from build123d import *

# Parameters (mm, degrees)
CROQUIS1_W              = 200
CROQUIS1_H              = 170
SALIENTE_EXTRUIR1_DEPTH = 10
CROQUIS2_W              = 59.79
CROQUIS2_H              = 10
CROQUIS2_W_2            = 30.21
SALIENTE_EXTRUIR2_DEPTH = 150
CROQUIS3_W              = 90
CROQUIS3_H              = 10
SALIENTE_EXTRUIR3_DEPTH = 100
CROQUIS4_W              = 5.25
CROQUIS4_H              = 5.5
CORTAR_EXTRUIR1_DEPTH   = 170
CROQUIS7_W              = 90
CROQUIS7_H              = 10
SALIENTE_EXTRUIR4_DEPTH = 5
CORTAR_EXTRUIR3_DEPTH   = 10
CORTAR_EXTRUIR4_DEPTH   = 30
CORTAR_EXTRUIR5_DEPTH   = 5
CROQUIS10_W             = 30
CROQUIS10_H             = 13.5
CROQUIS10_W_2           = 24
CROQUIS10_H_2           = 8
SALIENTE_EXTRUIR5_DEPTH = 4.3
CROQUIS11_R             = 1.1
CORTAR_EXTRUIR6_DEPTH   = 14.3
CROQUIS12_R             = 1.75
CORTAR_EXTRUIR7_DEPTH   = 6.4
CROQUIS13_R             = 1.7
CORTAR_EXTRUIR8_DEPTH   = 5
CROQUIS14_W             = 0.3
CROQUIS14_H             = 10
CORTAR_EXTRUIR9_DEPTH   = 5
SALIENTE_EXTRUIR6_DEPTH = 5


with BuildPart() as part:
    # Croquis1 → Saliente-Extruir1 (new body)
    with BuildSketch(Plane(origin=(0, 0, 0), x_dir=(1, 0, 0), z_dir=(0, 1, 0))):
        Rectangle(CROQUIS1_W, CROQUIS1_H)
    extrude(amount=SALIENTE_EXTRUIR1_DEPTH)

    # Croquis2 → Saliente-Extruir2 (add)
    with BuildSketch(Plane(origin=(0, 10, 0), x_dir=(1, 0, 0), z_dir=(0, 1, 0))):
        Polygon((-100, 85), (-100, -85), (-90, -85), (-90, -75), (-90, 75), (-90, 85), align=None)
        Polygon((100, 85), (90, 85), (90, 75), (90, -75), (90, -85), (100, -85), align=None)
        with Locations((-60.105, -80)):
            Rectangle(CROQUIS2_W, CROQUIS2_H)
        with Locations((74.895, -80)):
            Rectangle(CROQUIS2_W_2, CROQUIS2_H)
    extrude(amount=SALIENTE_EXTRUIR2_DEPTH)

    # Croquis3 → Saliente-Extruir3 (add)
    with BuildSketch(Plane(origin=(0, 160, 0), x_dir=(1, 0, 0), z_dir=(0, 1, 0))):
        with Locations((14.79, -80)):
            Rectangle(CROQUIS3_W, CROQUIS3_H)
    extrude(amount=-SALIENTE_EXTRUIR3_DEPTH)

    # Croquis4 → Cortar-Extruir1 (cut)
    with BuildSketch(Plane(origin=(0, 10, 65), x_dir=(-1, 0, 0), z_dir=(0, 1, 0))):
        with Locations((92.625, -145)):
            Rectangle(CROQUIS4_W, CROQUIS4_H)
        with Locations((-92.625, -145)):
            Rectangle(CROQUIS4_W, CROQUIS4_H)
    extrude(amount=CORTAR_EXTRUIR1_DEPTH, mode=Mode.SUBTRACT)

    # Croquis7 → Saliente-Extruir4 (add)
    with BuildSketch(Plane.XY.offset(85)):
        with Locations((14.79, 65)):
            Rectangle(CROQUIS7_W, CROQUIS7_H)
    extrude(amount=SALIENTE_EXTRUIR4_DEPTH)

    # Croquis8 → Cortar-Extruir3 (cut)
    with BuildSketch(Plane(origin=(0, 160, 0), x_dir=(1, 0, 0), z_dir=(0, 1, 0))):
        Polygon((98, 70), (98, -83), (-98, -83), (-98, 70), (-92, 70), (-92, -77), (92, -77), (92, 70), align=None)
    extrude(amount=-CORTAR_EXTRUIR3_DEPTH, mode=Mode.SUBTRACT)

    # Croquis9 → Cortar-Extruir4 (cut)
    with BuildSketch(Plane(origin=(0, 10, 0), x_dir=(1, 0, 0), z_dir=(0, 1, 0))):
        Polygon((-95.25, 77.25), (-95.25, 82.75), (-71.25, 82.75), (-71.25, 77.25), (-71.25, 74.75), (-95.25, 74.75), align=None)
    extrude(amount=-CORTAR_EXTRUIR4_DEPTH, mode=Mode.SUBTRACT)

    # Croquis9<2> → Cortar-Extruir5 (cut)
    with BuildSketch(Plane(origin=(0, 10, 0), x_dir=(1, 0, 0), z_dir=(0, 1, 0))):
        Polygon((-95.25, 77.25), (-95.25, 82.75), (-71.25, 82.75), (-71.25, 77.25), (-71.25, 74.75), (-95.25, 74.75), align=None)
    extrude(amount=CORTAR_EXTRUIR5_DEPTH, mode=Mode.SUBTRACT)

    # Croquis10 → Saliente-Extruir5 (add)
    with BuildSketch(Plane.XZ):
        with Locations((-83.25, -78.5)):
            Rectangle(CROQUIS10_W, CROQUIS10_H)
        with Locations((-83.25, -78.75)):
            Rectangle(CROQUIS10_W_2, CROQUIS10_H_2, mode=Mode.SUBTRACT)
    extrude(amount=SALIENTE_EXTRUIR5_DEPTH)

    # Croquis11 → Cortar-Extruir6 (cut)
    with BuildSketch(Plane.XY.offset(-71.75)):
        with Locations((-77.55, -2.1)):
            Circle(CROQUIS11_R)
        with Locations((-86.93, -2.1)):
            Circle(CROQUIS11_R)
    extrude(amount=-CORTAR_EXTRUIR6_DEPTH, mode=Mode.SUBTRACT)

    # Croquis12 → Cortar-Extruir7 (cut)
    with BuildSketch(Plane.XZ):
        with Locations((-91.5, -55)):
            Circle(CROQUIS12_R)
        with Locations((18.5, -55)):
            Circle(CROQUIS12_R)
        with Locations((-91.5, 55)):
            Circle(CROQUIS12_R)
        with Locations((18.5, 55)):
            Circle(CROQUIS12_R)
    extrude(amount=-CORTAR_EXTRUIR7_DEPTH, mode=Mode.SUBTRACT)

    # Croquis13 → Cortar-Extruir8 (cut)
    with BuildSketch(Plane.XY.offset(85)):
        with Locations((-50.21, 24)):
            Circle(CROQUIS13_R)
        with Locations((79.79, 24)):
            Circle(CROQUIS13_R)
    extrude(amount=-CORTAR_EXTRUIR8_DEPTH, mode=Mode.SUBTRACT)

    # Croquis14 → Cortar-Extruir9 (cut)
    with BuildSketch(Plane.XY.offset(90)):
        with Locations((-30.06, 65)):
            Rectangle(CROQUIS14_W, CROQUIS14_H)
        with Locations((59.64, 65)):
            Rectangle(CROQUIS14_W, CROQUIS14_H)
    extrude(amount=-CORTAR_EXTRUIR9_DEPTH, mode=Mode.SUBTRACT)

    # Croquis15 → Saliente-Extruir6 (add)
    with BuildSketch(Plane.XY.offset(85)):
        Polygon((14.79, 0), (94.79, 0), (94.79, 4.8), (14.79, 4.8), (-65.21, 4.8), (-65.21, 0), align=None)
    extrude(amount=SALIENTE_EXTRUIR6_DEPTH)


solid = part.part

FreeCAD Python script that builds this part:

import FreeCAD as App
import Part
import Sketcher

V = App.Vector


def add_polygon(sketch, points):
    """Adds a closed chain of lines whose ends are joined by coincident constraints."""
    first, n = sketch.GeometryCount, len(points)
    for a, b in zip(points, points[1:] + points[:1]):
        sketch.addGeometry(Part.LineSegment(App.Vector(*a, 0), App.Vector(*b, 0)), False)
    for i in range(n):
        sketch.addConstraint(Sketcher.Constraint("Coincident", first + i, 2, first + (i + 1) % n, 1))

doc = App.newDocument("Part")
body = doc.addObject("PartDesign::Body", "Body")

# Sketch on XZ plane
sketch1 = body.newObject("Sketcher::SketchObject", "Sketch")
sketch1.AttachmentSupport = (doc.getObject("XZ_Plane"), [""])
sketch1.MapMode = "FlatFace"
add_polygon(sketch1, [(-100, -85), (-100, 85), (100, 85), (100, -85)])  # lines 0-3
sketch1.addConstraint([
    Sketcher.Constraint("Vertical", 0),
    Sketcher.Constraint("Horizontal", 1),
    Sketcher.Constraint("Vertical", 2),
    Sketcher.Constraint("Horizontal", 3),
    Sketcher.Constraint("Symmetric", 0, 2, 2, 2, -1, 1),
    Sketcher.Constraint("DistanceX", 1, 1, 1, 2, 200.0),
    Sketcher.Constraint("DistanceY", 0, 1, 0, 2, 170.0),
])
pad1 = body.newObject("PartDesign::Pad", "Pad")
pad1.Profile = sketch1
pad1.Length = 10
pad1.Reversed = True

# Sketch on XZ plane
sketch2 = body.newObject("Sketcher::SketchObject", "Sketch001")
sketch2.AttachmentSupport = (doc.getObject("XZ_Plane"), [""])
sketch2.MapMode = "FlatFace"
sketch2.AttachmentOffset = App.Placement(V(0, 0, -10), App.Rotation())
add_polygon(sketch2, [(-100, -85), (-100, 85), (-30, 85), (-30, 75), (-90, 75), (-90, -85)])  # lines 0-5
add_polygon(sketch2, [(100, -85), (90, -85), (90, 75), (60, 75), (60, 85), (100, 85)])  # lines 6-11
sketch2.addConstraint([
    Sketcher.Constraint("Vertical", 0),
    Sketcher.Constraint("Horizontal", 1),
    Sketcher.Constraint("Vertical", 2),
    Sketcher.Constraint("Horizontal", 3),
    Sketcher.Constraint("Vertical", 4),
    Sketcher.Constraint("Horizontal", 5),
    Sketcher.Constraint("Horizontal", 6),
    Sketcher.Constraint("Vertical", 7),
    Sketcher.Constraint("Horizontal", 8),
    Sketcher.Constraint("Vertical", 9),
    Sketcher.Constraint("Horizontal", 10),
    Sketcher.Constraint("Vertical", 11),
    Sketcher.Constraint("Symmetric", 5, 2, 10, 2, -1, 1),
    Sketcher.Constraint("Symmetric", 4, 2, 6, 2, -2),
    Sketcher.Constraint("Horizontal", 3, 2, 7, 2),
    Sketcher.Constraint("Horizontal", 1, 2, 9, 2),
    Sketcher.Constraint("Equal", 6, 2),
    Sketcher.Constraint("DistanceX", 5, 2, 5, 1, 10.0),
    Sketcher.Constraint("DistanceY", 0, 1, 0, 2, 170.0),
    Sketcher.Constraint("DistanceX", 0, 2, -1, 1, 100.0),
    Sketcher.Constraint("DistanceX", 2, 2, 8, 2, 90.0),
    Sketcher.Constraint("DistanceX", 1, 1, 1, 2, 69.79),
])
pad2 = body.newObject("PartDesign::Pad", "Pad001")
pad2.Profile = sketch2
pad2.Length = 150
pad2.Reversed = True

# Sketch on XZ plane
sketch3 = body.newObject("Sketcher::SketchObject", "Sketch002")
sketch3.AttachmentSupport = (doc.getObject("XZ_Plane"), [""])
sketch3.MapMode = "FlatFace"
sketch3.AttachmentOffset = App.Placement(V(0, 0, -160), App.Rotation())
add_polygon(sketch3, [(-30, 75), (-30, 85), (60, 85), (60, 75)])  # lines 0-3
sketch3.addConstraint([
    Sketcher.Constraint("Vertical", 0),
    Sketcher.Constraint("Horizontal", 1),
    Sketcher.Constraint("Vertical", 2),
    Sketcher.Constraint("Horizontal", 3),
    Sketcher.Constraint("DistanceX", 1, 1, 1, 2, 90.0),
    Sketcher.Constraint("DistanceY", 0, 1, 0, 2, 10.0),
    Sketcher.Constraint("DistanceY", -1, 1, 0, 2, 85.0),
    Sketcher.Constraint("DistanceX", 0, 2, -1, 1, 30.21),
])
pad3 = body.newObject("PartDesign::Pad", "Pad002")
pad3.Profile = sketch3
pad3.Length = 100

# Sketch on XZ plane
sketch4 = body.newObject("Sketcher::SketchObject", "Sketch003")
sketch4.AttachmentSupport = (doc.getObject("XZ_Plane"), [""])
sketch4.MapMode = "FlatFace"
sketch4.AttachmentOffset = App.Placement(V(0, 0, -10), App.Rotation())
add_polygon(sketch4, [(-90, -77), (-90, -83), (-95, -83), (-95, -77)])  # lines 0-3
add_polygon(sketch4, [(95, -77), (95, -83), (90, -83), (90, -77)])  # lines 4-7
sketch4.addConstraint([
    Sketcher.Constraint("Vertical", 0),
    Sketcher.Constraint("Horizontal", 1),
    Sketcher.Constraint("Vertical", 2),
    Sketcher.Constraint("Horizontal", 3),
    Sketcher.Constraint("Vertical", 4),
    Sketcher.Constraint("Horizontal", 5),
    Sketcher.Constraint("Vertical", 6),
    Sketcher.Constraint("Horizontal", 7),
    Sketcher.Constraint("Symmetric", 1, 2, 4, 2, -2),
    Sketcher.Constraint("Symmetric", 3, 2, 6, 2, -2),
    Sketcher.Constraint("DistanceY", 0, 2, 0, 1, 5.5),
    Sketcher.Constraint("DistanceX", 0, 2, -1, 1, 90.0),
    Sketcher.Constraint("DistanceX", 1, 2, 1, 1, 5.25),
    Sketcher.Constraint("DistanceY", 0, 2, -1, 1, 82.75),
])
pocket1 = body.newObject("PartDesign::Pocket", "Pocket")
pocket1.Profile = sketch4
pocket1.Length = 170

# Sketch on XY plane
sketch5 = body.newObject("Sketcher::SketchObject", "Sketch004")
sketch5.AttachmentSupport = (doc.getObject("XY_Plane"), [""])
sketch5.MapMode = "FlatFace"
sketch5.AttachmentOffset = App.Placement(V(0, 0, 85), App.Rotation())
add_polygon(sketch5, [(-30, 70), (-30, 60), (60, 60), (60, 70)])  # lines 0-3
sketch5.addConstraint([
    Sketcher.Constraint("Vertical", 0),
    Sketcher.Constraint("Horizontal", 1),
    Sketcher.Constraint("Vertical", 2),
    Sketcher.Constraint("Horizontal", 3),
    Sketcher.Constraint("DistanceX", 1, 1, 1, 2, 90.0),
    Sketcher.Constraint("DistanceY", 0, 2, 0, 1, 10.0),
    Sketcher.Constraint("DistanceY", -1, 1, 0, 2, 60.0),
    Sketcher.Constraint("DistanceX", 0, 2, -1, 1, 30.21),
])
pad4 = body.newObject("PartDesign::Pad", "Pad003")
pad4.Profile = sketch5
pad4.Length = 5

# Sketch on XZ plane
sketch6 = body.newObject("Sketcher::SketchObject", "Sketch005")
sketch6.AttachmentSupport = (doc.getObject("XZ_Plane"), [""])
sketch6.MapMode = "FlatFace"
sketch6.AttachmentOffset = App.Placement(V(0, 0, -160), App.Rotation())
add_polygon(sketch6, [(98, 83), (98, -70), (92, -70), (92, 77), (-92, 77), (-92, -70), (-98, -70), (-98, 83)])  # lines 0-7
sketch6.addConstraint([
    Sketcher.Constraint("Vertical", 0),
    Sketcher.Constraint("Horizontal", 1),
    Sketcher.Constraint("Vertical", 2),
    Sketcher.Constraint("Horizontal", 3),
    Sketcher.Constraint("Vertical", 4),
    Sketcher.Constraint("Horizontal", 5),
    Sketcher.Constraint("Vertical", 6),
    Sketcher.Constraint("Horizontal", 7),
    Sketcher.Constraint("Symmetric", 1, 2, 4, 2, -2),
    Sketcher.Constraint("Equal", 1, 5),
    Sketcher.Constraint("DistanceX", 1, 2, 1, 1, 6.0),
    Sketcher.Constraint("DistanceX", 3, 2, 3, 1, 184.0),
    Sketcher.Constraint("DistanceY", 0, 2, 0, 1, 153.0),
    Sketcher.Constraint("DistanceY", 2, 1, 2, 2, 147.0),
    Sketcher.Constraint("DistanceY", 0, 2, -1, 1, 70.0),
])
pocket2 = body.newObject("PartDesign::Pocket", "Pocket001")
pocket2.Profile = sketch6
pocket2.Length = 10
pocket2.Reversed = True

# Sketch on XZ plane
sketch7 = body.newObject("Sketcher::SketchObject", "Sketch006")
sketch7.AttachmentSupport = (doc.getObject("XZ_Plane"), [""])
sketch7.MapMode = "FlatFace"
sketch7.AttachmentOffset = App.Placement(V(0, 0, -10), App.Rotation())
add_polygon(sketch7, [(-95, -83), (-95, -75), (-71, -75), (-71, -83)])  # lines 0-3
sketch7.addConstraint([
    Sketcher.Constraint("Vertical", 0),
    Sketcher.Constraint("Horizontal", 1),
    Sketcher.Constraint("Vertical", 2),
    Sketcher.Constraint("Horizontal", 3),
    Sketcher.Constraint("DistanceX", 1, 1, 1, 2, 24.0),
    Sketcher.Constraint("DistanceY", 0, 1, 0, 2, 8.0),
    Sketcher.Constraint("DistanceX", 0, 2, -1, 1, 95.25),
    Sketcher.Constraint("DistanceY", 0, 2, -1, 1, 74.75),
])
pocket3 = body.newObject("PartDesign::Pocket", "Pocket002")
pocket3.Profile = sketch7
pocket3.Length = 30
pocket3.Reversed = True

# Sketch on XZ plane
sketch8 = body.newObject("Sketcher::SketchObject", "Sketch007")
sketch8.AttachmentSupport = (doc.getObject("XZ_Plane"), [""])
sketch8.MapMode = "FlatFace"
sketch8.AttachmentOffset = App.Placement(V(0, 0, -10), App.Rotation())
add_polygon(sketch8, [(-95, -83), (-95, -75), (-71, -75), (-71, -83)])  # lines 0-3
sketch8.addConstraint([
    Sketcher.Constraint("Vertical", 0),
    Sketcher.Constraint("Horizontal", 1),
    Sketcher.Constraint("Vertical", 2),
    Sketcher.Constraint("Horizontal", 3),
    Sketcher.Constraint("DistanceX", 1, 1, 1, 2, 24.0),
    Sketcher.Constraint("DistanceY", 0, 1, 0, 2, 8.0),
    Sketcher.Constraint("DistanceX", 0, 2, -1, 1, 95.25),
    Sketcher.Constraint("DistanceY", 0, 2, -1, 1, 74.75),
])
pocket4 = body.newObject("PartDesign::Pocket", "Pocket003")
pocket4.Profile = sketch8
pocket4.Length = 5

# Sketch on XZ plane
sketch9 = body.newObject("Sketcher::SketchObject", "Sketch008")
sketch9.AttachmentSupport = (doc.getObject("XZ_Plane"), [""])
sketch9.MapMode = "FlatFace"
add_polygon(sketch9, [(-98, -72), (-98, -85), (-68, -85), (-68, -72)])  # lines 0-3
add_polygon(sketch9, [(-71, -83), (-95, -83), (-95, -75), (-71, -75)])  # lines 4-7
sketch9.addConstraint([
    Sketcher.Constraint("Vertical", 0),
    Sketcher.Constraint("Horizontal", 1),
    Sketcher.Constraint("Vertical", 2),
    Sketcher.Constraint("Horizontal", 3),
    Sketcher.Constraint("Horizontal", 4),
    Sketcher.Constraint("Vertical", 5),
    Sketcher.Constraint("Horizontal", 6),
    Sketcher.Constraint("Vertical", 7),
    Sketcher.Constraint("DistanceX", 1, 1, 1, 2, 30.0),
    Sketcher.Constraint("DistanceX", 4, 2, 4, 1, 24.0),
    Sketcher.Constraint("DistanceY", 5, 1, 5, 2, 8.0),
    Sketcher.Constraint("DistanceY", 0, 2, 0, 1, 13.5),
    Sketcher.Constraint("DistanceX", 0, 2, 4, 2, 3.0),
    Sketcher.Constraint("DistanceY", 4, 2, 3, 2, 11.0),
    Sketcher.Constraint("DistanceX", 0, 2, -1, 1, 98.25),
    Sketcher.Constraint("DistanceY", 0, 2, -1, 1, 85.25),
])
pad5 = body.newObject("PartDesign::Pad", "Pad004")
pad5.Profile = sketch9
pad5.Length = 4.3

# Sketch on XY plane
sketch10 = body.newObject("Sketcher::SketchObject", "Sketch009")
sketch10.AttachmentSupport = (doc.getObject("XY_Plane"), [""])
sketch10.MapMode = "FlatFace"
sketch10.AttachmentOffset = App.Placement(V(0, 0, -71.75), App.Rotation())
sketch10.addGeometry([
    Part.Circle(V(-77.5, -2.1, 0), V(0, 0, 1), 1.1),
    Part.Circle(V(-86.9, -2.1, 0), V(0, 0, 1), 1.1),
], False)
sketch10.addConstraint([
    Sketcher.Constraint("Equal", 0, 1),
    Sketcher.Constraint("Horizontal", 0, 3, 1, 3),
    Sketcher.Constraint("Diameter", 0, 2.2),
    Sketcher.Constraint("DistanceY", 0, 3, -1, 1, 2.1),
    Sketcher.Constraint("DistanceX", 0, 3, -1, 1, 77.55),
    Sketcher.Constraint("DistanceX", 1, 3, -1, 1, 86.93),
])
pocket5 = body.newObject("PartDesign::Pocket", "Pocket004")
pocket5.Profile = sketch10
pocket5.Length = 14.3

# Sketch on XZ plane
sketch11 = body.newObject("Sketcher::SketchObject", "Sketch010")
sketch11.AttachmentSupport = (doc.getObject("XZ_Plane"), [""])
sketch11.MapMode = "FlatFace"
sketch11.addGeometry([
    Part.Circle(V(-91.5, -55, 0), V(0, 0, 1), 1.8),
    Part.Circle(V(18.5, -55, 0), V(0, 0, 1), 1.8),
    Part.Circle(V(-91.5, 55, 0), V(0, 0, 1), 1.8),
    Part.Circle(V(18.5, 55, 0), V(0, 0, 1), 1.8),
], False)
sketch11.addConstraint([
    Sketcher.Constraint("Equal", 0, 1),
    Sketcher.Constraint("Equal", 1, 2),
    Sketcher.Constraint("Equal", 2, 3),
    Sketcher.Constraint("Symmetric", 0, 3, 2, 3, -1),
    Sketcher.Constraint("Symmetric", 1, 3, 3, 3, -1),
    Sketcher.Constraint("Horizontal", 0, 3, 1, 3),
    Sketcher.Constraint("Diameter", 0, 3.5),
    Sketcher.Constraint("DistanceY", 0, 3, -1, 1, 55.0),
    Sketcher.Constraint("DistanceX", 0, 3, 1, 3, 110.0),
    Sketcher.Constraint("DistanceX", 0, 3, -1, 1, 91.5),
])
pocket6 = body.newObject("PartDesign::Pocket", "Pocket005")
pocket6.Profile = sketch11
pocket6.Length = 6.4

# Sketch on XY plane
sketch12 = body.newObject("Sketcher::SketchObject", "Sketch011")
sketch12.AttachmentSupport = (doc.getObject("XY_Plane"), [""])
sketch12.MapMode = "FlatFace"
sketch12.AttachmentOffset = App.Placement(V(0, 0, 85), App.Rotation())
sketch12.addGeometry([
    Part.Circle(V(-50.2, 24, 0), V(0, 0, 1), 1.7),
    Part.Circle(V(79.8, 24, 0), V(0, 0, 1), 1.7),
], False)
sketch12.addConstraint([
    Sketcher.Constraint("Equal", 0, 1),
    Sketcher.Constraint("Horizontal", 0, 3, 1, 3),
    Sketcher.Constraint("Diameter", 0, 3.4),
    Sketcher.Constraint("DistanceY", -1, 1, 0, 3, 24.0),
    Sketcher.Constraint("DistanceX", 0, 3, 1, 3, 130.0),
    Sketcher.Constraint("DistanceX", 0, 3, -1, 1, 50.21),
])
pocket7 = body.newObject("PartDesign::Pocket", "Pocket006")
pocket7.Profile = sketch12
pocket7.Length = 5

# Sketch on XY plane
sketch13 = body.newObject("Sketcher::SketchObject", "Sketch012")
sketch13.AttachmentSupport = (doc.getObject("XY_Plane"), [""])
sketch13.MapMode = "FlatFace"
sketch13.AttachmentOffset = App.Placement(V(0, 0, 90), App.Rotation())
add_polygon(sketch13, [(-30.21, 70), (-30.21, 60), (-29.91, 60), (-29.91, 70)])  # lines 0-3
add_polygon(sketch13, [(59.49, 70), (59.49, 60), (59.79, 60), (59.79, 70)])  # lines 4-7
sketch13.addConstraint([
    Sketcher.Constraint("Vertical", 0),
    Sketcher.Constraint("Horizontal", 1),
    Sketcher.Constraint("Vertical", 2),
    Sketcher.Constraint("Horizontal", 3),
    Sketcher.Constraint("Vertical", 4),
    Sketcher.Constraint("Horizontal", 5),
    Sketcher.Constraint("Vertical", 6),
    Sketcher.Constraint("Horizontal", 7),
    Sketcher.Constraint("Horizontal", 1, 2, 4, 2),
    Sketcher.Constraint("Horizontal", 3, 2, 6, 2),
    Sketcher.Constraint("Equal", 3, 5),
    Sketcher.Constraint("DistanceY", 0, 2, 0, 1, 10.0),
    Sketcher.Constraint("DistanceX", 1, 1, 1, 2, 0.3),
    Sketcher.Constraint("DistanceY", -1, 1, 0, 2, 60.0),
    Sketcher.Constraint("DistanceX", 0, 2, 5, 2, 90.0),
    Sketcher.Constraint("DistanceX", 0, 2, -1, 1, 30.21),
])
pocket8 = body.newObject("PartDesign::Pocket", "Pocket007")
pocket8.Profile = sketch13
pocket8.Length = 5

# Sketch on XY plane
sketch14 = body.newObject("Sketcher::SketchObject", "Sketch013")
sketch14.AttachmentSupport = (doc.getObject("XY_Plane"), [""])
sketch14.MapMode = "FlatFace"
sketch14.AttachmentOffset = App.Placement(V(0, 0, 85), App.Rotation())
add_polygon(sketch14, [(94.8, 0), (94.8, 4.8), (-65.2, 4.8), (-65.2, 0)])  # lines 0-3
sketch14.addConstraint([
    Sketcher.Constraint("Vertical", 0),
    Sketcher.Constraint("Horizontal", 1),
    Sketcher.Constraint("Vertical", 2),
    Sketcher.Constraint("Horizontal", 3),
    Sketcher.Constraint("PointOnObject", 2, 2, -1),
    Sketcher.Constraint("DistanceX", 1, 2, 1, 1, 160.0),
    Sketcher.Constraint("DistanceY", 0, 1, 0, 2, 4.8),
    Sketcher.Constraint("DistanceX", -1, 1, 0, 2, 94.79),
])
pad6 = body.newObject("PartDesign::Pad", "Pad005")
pad6.Profile = sketch14
pad6.Length = 5

doc.recompute()
